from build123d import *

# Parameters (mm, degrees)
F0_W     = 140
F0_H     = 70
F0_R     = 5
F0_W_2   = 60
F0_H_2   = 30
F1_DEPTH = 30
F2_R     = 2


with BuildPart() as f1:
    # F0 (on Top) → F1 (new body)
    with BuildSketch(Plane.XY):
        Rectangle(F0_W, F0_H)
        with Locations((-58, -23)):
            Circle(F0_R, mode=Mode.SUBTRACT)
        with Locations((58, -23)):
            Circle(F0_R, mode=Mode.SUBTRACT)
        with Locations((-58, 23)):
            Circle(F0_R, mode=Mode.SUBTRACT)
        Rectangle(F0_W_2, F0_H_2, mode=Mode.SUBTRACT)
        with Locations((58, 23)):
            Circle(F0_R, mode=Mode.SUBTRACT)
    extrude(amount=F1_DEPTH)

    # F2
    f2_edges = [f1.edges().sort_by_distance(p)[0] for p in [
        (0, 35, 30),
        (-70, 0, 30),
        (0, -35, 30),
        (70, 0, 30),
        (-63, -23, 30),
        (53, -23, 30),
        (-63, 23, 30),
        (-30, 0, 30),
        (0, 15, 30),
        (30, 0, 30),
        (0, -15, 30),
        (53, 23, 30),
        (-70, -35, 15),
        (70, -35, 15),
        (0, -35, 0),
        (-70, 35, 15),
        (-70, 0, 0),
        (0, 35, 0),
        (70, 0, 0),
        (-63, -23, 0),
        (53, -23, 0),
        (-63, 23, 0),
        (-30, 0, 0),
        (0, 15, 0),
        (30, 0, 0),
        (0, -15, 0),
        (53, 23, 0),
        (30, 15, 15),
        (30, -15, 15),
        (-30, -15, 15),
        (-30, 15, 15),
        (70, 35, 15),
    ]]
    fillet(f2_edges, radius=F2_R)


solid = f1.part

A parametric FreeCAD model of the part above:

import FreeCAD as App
import Part
import Sketcher

doc = App.newDocument("Part")
body = doc.addObject("PartDesign::Body", "Body")

# Sketch on XY plane
sketch1 = doc.addObject("Sketcher::SketchObject", "Sketch")
body.addObject(sketch1)
sketch1.AttachmentSupport = (doc.XY_Plane, [""])
sketch1.MapMode = "FlatFace"
sketch1.addGeometry([
    Part.LineSegment(App.Vector(-70, 35, 0), App.Vector(-70, -35, 0)),  # 0
    Part.LineSegment(App.Vector(-70, -35, 0), App.Vector(70, -35, 0)),  # 1
    Part.LineSegment(App.Vector(70, -35, 0), App.Vector(70, 35, 0)),  # 2
    Part.LineSegment(App.Vector(70, 35, 0), App.Vector(-70, 35, 0)),  # 3
    Part.Circle(App.Vector(-58, -23, 0), App.Vector(0, 0, 1), 5),  # 4
    Part.Circle(App.Vector(58, -23, 0), App.Vector(0, 0, 1), 5),  # 5
    Part.Circle(App.Vector(-58, 23, 0), App.Vector(0, 0, 1), 5),  # 6
    Part.LineSegment(App.Vector(30, -15, 0), App.Vector(-30, -15, 0)),  # 7
    Part.LineSegment(App.Vector(-30, -15, 0), App.Vector(-30, 15, 0)),  # 8
    Part.LineSegment(App.Vector(-30, 15, 0), App.Vector(30, 15, 0)),  # 9
    Part.LineSegment(App.Vector(30, 15, 0), App.Vector(30, -15, 0)),  # 10
    Part.Circle(App.Vector(58, 23, 0), App.Vector(0, 0, 1), 5),  # 11
], False)
sketch1.addConstraint([
    Sketcher.Constraint("Coincident", 0, 2, 1, 1),
    Sketcher.Constraint("Coincident", 1, 2, 2, 1),
    Sketcher.Constraint("Coincident", 2, 2, 3, 1),
    Sketcher.Constraint("Coincident", 3, 2, 0, 1),
    Sketcher.Constraint("Coincident", 7, 2, 8, 1),
    Sketcher.Constraint("Coincident", 8, 2, 9, 1),
    Sketcher.Constraint("Coincident", 9, 2, 10, 1),
    Sketcher.Constraint("Coincident", 10, 2, 7, 1),
    Sketcher.Constraint("Vertical", 0),
    Sketcher.Constraint("Horizontal", 1),
    Sketcher.Constraint("Vertical", 2),
    Sketcher.Constraint("Horizontal", 3),
    Sketcher.Constraint("Horizontal", 7),
    Sketcher.Constraint("Vertical", 8),
    Sketcher.Constraint("Horizontal", 9),
    Sketcher.Constraint("Vertical", 10),
    Sketcher.Constraint("Equal", 4, 5),
    Sketcher.Constraint("Equal", 5, 6),
    Sketcher.Constraint("Equal", 6, 11),
    Sketcher.Constraint("Symmetric", 5, 3, 6, 3, -1, 1),
    Sketcher.Constraint("Symmetric", 4, 3, 11, 3, -1, 1),
    Sketcher.Constraint("Symmetric", 0, 2, 2, 2, -1, 1),
    Sketcher.Constraint("Symmetric", 7, 2, 9, 2, -1, 1),
    Sketcher.Constraint("Symmetric", 4, 3, 5, 3, -2),
    Sketcher.Constraint("Diameter", 4, 10.0),
    Sketcher.Constraint("DistanceX", 1, 1, 1, 2, 140.0),
    Sketcher.Constraint("DistanceX", 7, 2, 7, 1, 60.0),
    Sketcher.Constraint("DistanceY", 0, 2, 0, 1, 70.0),
    Sketcher.Constraint("DistanceY", 8, 1, 8, 2, 30.0),
    Sketcher.Constraint("DistanceX", 4, 3, -1, 1, 58.0),
    Sketcher.Constraint("DistanceY", 4, 3, -1, 1, 23.0),
])
pad1 = doc.addObject("PartDesign::Pad", "Pad")
body.addObject(pad1)
pad1.Profile = sketch1
pad1.Length = 30
doc.recompute()

fillet = doc.addObject("PartDesign::Fillet", "Fillet")
body.addObject(fillet)
fillet.Base = (pad1, ["Edge1"])
fillet.UseAllEdges = True
fillet.Radius = 2

doc.recompute()
